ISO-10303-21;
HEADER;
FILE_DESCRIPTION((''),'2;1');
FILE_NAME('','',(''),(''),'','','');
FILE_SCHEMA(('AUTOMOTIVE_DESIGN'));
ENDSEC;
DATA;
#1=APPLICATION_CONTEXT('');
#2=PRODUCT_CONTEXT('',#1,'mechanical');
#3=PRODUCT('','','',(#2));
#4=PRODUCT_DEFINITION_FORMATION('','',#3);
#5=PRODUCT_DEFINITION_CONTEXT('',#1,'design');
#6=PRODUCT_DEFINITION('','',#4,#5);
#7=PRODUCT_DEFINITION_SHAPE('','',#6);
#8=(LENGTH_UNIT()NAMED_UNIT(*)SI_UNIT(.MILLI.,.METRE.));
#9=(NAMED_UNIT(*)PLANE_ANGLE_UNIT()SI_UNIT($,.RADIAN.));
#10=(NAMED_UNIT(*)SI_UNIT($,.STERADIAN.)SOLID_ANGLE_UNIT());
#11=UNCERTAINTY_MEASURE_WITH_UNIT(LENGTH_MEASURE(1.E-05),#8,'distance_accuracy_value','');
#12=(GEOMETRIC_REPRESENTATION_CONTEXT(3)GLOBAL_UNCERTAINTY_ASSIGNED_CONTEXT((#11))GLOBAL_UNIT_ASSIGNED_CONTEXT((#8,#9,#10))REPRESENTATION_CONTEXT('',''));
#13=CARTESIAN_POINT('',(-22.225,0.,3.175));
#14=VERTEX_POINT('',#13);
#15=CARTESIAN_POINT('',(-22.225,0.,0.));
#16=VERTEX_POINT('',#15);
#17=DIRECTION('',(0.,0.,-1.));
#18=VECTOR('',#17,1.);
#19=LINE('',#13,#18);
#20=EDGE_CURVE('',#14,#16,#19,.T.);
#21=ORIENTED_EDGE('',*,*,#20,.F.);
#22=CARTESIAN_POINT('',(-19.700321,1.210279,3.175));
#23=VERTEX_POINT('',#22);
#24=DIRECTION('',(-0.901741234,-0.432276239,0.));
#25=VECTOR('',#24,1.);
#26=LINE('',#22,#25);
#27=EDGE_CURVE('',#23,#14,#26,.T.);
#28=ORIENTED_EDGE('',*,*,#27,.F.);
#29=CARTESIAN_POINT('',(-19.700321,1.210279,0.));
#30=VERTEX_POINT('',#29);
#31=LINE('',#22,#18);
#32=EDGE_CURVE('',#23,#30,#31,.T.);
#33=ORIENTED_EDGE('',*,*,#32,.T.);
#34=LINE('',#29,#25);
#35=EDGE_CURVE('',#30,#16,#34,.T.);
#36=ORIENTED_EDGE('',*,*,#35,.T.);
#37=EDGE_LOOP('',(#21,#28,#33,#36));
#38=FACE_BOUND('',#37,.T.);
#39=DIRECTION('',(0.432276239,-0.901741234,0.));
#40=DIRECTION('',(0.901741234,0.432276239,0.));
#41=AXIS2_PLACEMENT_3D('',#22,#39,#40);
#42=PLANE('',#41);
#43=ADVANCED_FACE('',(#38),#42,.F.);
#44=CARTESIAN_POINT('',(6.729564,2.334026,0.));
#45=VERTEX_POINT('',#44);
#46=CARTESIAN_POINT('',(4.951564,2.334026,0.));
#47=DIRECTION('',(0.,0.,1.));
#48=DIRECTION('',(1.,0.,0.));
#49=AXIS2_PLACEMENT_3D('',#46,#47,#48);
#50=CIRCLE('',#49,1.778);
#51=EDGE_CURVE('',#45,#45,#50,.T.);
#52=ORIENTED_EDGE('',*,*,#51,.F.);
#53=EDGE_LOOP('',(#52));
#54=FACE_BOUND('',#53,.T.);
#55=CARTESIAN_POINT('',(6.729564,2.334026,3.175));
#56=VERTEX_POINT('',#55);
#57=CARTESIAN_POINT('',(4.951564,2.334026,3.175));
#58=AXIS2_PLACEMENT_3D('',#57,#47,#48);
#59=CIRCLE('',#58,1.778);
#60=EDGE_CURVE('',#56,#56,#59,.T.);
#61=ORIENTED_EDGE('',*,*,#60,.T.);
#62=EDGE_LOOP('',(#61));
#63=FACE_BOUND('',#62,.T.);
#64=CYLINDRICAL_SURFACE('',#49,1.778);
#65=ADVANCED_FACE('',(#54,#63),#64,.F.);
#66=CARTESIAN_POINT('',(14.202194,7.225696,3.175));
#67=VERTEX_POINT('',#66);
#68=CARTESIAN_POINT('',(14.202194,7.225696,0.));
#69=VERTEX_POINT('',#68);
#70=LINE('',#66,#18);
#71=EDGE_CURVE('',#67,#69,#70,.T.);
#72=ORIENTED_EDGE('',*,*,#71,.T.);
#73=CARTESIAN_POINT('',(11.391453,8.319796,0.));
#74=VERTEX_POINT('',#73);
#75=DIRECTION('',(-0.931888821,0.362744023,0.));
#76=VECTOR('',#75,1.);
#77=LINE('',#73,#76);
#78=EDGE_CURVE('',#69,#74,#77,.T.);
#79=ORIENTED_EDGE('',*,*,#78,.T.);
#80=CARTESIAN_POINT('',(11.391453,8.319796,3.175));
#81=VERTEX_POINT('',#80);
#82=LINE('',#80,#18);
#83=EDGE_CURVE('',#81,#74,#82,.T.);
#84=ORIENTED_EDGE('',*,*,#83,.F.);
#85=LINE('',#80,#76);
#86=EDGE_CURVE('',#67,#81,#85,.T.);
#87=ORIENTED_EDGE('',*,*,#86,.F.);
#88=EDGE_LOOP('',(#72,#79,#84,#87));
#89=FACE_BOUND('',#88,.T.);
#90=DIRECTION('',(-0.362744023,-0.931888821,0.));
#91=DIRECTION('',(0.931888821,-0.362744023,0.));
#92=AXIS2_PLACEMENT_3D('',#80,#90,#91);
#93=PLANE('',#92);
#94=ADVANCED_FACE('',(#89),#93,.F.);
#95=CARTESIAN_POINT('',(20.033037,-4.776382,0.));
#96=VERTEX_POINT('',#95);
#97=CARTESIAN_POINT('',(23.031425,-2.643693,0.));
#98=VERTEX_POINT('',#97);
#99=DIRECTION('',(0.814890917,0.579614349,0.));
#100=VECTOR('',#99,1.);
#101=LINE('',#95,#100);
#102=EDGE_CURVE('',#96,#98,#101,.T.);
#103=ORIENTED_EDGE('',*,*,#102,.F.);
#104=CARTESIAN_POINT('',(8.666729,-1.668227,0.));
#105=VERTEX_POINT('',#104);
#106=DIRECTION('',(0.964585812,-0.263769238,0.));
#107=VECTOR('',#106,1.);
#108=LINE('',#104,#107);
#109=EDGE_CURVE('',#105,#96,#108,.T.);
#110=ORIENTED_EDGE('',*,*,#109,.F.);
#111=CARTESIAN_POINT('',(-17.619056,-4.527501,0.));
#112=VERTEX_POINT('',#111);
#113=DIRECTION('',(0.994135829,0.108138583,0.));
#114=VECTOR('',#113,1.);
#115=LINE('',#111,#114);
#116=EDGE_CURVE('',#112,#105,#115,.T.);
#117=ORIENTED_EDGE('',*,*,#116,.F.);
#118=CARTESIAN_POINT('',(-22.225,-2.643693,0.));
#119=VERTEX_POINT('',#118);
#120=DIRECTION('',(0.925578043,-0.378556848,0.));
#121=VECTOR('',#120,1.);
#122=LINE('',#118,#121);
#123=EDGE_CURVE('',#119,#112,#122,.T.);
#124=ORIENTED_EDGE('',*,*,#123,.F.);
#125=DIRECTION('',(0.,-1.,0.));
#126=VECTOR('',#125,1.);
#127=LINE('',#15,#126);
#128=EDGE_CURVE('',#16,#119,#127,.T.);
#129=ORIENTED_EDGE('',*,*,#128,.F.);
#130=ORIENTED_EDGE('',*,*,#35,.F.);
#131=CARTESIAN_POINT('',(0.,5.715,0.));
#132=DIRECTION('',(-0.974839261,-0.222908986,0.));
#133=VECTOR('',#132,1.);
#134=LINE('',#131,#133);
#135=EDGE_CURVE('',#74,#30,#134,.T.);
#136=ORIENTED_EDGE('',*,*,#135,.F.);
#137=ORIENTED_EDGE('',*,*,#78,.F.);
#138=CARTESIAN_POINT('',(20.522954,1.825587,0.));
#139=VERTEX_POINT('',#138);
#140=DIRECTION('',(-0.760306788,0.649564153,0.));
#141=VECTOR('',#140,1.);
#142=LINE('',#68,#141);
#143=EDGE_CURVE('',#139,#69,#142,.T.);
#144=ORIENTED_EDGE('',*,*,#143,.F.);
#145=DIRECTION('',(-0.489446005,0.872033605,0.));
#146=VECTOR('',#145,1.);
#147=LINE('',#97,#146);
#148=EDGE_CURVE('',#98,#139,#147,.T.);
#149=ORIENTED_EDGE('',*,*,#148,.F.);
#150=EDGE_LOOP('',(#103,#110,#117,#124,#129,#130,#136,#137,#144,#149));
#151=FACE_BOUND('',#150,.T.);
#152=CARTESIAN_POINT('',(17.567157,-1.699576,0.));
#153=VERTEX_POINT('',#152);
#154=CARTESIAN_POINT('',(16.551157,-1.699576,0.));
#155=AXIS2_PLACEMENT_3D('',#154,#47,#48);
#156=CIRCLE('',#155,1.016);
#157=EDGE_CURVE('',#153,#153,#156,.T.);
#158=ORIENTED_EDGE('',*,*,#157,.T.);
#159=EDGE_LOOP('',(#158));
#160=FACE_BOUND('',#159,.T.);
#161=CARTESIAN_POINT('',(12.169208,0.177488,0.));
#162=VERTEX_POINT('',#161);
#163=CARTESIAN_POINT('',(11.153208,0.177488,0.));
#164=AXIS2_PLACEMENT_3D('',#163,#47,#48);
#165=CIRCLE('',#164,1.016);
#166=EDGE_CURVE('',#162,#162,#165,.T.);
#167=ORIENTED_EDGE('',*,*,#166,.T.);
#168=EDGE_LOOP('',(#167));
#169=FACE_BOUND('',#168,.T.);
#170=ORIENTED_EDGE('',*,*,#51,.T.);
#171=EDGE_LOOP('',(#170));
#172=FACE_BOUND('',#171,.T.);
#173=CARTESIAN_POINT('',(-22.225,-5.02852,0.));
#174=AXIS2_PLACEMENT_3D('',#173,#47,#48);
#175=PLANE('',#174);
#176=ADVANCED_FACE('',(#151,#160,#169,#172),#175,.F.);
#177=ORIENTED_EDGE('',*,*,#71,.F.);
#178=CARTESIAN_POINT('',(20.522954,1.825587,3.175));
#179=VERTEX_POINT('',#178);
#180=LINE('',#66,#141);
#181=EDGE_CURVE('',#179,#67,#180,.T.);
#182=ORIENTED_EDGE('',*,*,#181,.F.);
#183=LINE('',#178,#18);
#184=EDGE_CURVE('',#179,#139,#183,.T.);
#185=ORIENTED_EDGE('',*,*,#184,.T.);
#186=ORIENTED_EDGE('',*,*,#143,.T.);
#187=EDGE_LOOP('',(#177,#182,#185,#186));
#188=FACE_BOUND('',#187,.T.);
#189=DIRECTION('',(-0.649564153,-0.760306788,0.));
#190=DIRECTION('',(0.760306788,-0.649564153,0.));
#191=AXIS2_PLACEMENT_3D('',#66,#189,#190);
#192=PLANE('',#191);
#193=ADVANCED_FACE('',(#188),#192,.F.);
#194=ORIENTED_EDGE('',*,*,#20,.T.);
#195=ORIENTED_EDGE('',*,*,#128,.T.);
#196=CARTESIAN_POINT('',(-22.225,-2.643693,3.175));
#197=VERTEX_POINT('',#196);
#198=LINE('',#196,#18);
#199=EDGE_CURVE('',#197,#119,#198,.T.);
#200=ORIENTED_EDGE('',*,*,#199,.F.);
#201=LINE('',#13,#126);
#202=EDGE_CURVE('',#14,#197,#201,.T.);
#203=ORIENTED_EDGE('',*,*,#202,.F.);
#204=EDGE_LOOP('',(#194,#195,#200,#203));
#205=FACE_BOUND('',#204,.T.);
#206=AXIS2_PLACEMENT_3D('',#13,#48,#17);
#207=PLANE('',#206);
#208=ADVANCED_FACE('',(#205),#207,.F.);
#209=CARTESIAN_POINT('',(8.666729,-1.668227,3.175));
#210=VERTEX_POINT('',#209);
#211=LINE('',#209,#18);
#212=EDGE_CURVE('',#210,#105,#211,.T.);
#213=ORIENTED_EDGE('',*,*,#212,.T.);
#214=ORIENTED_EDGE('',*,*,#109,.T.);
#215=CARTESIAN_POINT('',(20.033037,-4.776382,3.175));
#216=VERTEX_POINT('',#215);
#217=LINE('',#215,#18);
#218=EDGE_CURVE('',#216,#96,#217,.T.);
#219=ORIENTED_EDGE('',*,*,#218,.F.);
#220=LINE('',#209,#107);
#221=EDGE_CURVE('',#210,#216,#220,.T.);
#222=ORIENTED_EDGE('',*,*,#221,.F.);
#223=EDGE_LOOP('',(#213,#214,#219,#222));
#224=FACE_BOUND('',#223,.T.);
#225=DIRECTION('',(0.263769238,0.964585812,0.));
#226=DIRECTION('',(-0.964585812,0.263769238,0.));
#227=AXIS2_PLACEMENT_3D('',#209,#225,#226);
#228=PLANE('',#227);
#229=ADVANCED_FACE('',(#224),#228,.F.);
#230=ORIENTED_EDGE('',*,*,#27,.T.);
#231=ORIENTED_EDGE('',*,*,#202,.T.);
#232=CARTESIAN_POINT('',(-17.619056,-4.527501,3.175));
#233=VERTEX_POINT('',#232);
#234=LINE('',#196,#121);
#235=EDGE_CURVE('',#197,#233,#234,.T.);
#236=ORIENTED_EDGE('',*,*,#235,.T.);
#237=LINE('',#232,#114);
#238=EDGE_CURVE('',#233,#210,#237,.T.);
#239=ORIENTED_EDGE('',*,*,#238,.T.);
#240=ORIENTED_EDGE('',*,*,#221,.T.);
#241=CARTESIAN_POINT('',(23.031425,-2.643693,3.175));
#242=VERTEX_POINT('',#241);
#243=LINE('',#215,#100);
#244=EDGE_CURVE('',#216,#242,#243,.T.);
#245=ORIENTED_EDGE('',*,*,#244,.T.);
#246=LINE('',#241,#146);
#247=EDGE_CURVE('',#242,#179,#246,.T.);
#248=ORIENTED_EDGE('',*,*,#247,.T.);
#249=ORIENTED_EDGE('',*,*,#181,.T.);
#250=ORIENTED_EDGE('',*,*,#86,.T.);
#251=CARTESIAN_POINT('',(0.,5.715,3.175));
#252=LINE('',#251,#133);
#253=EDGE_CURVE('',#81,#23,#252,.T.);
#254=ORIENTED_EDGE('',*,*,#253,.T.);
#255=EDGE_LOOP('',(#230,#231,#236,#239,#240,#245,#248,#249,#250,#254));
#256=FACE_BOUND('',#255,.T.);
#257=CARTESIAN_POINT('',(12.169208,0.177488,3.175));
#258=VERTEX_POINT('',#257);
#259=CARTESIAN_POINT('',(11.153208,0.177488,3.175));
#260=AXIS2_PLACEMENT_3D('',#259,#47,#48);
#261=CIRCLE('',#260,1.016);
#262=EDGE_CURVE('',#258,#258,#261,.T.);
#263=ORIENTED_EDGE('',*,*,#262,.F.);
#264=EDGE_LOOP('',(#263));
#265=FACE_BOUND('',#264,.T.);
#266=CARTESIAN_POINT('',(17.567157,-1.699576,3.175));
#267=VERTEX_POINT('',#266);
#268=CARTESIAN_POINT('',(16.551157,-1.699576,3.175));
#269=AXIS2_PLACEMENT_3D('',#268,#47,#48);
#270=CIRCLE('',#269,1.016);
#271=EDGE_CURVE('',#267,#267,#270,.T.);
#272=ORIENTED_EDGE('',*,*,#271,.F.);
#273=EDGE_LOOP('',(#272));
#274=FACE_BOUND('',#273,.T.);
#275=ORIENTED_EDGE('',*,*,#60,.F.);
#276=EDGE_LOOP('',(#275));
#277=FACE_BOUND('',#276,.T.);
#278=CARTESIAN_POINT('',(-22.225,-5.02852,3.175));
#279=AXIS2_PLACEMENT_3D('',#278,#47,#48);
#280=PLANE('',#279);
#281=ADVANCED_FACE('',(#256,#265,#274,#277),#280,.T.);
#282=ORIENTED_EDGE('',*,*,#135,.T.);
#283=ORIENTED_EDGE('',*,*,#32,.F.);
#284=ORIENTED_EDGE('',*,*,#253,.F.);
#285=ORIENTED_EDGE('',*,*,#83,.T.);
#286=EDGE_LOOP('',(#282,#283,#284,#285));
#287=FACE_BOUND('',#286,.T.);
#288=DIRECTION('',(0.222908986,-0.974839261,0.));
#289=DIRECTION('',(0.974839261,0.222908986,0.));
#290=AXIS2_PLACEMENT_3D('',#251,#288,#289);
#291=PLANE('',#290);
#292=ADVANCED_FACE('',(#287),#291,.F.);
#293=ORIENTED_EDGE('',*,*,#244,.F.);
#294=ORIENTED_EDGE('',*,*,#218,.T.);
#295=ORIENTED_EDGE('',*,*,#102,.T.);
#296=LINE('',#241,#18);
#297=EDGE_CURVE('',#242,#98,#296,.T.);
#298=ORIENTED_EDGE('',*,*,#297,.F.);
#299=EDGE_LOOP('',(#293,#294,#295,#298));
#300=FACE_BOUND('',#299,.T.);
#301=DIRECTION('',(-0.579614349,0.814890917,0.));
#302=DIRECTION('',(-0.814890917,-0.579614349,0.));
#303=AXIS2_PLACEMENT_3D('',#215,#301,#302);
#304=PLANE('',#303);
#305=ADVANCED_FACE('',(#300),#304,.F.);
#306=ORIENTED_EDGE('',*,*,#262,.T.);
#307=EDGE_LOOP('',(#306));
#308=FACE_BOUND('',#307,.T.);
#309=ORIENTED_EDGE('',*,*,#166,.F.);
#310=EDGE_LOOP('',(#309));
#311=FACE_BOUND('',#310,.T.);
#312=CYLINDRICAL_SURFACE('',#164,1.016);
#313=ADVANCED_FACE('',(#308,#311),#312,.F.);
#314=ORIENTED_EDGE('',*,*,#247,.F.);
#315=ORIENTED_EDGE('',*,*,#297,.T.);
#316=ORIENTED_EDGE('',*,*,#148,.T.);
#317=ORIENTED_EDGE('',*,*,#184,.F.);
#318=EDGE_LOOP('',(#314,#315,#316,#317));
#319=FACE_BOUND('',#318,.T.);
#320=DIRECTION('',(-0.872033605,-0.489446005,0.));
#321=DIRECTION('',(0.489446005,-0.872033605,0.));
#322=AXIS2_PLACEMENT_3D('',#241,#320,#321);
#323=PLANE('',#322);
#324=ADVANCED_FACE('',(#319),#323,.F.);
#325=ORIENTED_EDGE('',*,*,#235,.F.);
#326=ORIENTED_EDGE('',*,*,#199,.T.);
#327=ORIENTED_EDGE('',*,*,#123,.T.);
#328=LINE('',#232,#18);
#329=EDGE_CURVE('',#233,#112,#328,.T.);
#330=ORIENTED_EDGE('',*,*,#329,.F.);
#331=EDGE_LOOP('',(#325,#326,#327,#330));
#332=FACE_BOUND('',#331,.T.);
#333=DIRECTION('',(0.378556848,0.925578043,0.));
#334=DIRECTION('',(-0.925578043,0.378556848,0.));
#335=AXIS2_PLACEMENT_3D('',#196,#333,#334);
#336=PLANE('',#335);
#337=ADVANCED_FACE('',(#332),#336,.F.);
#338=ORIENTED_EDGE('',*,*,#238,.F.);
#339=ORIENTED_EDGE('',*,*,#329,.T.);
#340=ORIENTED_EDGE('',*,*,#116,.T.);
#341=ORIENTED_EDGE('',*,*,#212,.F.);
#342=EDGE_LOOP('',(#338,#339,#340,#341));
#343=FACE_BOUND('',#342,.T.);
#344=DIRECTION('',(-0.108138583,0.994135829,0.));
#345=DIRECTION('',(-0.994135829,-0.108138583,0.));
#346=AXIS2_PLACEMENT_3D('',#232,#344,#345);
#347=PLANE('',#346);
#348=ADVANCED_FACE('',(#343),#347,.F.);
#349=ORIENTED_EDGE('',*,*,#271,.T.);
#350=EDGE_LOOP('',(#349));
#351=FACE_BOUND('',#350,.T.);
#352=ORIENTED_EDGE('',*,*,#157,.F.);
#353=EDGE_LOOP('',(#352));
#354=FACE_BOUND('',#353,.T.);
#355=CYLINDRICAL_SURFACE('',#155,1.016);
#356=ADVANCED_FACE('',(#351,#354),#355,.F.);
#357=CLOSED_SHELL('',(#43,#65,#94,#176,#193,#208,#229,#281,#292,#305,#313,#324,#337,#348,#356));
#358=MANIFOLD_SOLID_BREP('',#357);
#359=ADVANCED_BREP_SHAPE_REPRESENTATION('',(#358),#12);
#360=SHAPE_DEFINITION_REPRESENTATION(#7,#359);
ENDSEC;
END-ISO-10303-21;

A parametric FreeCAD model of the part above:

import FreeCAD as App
import Part
import Sketcher
Q = App.Units.Quantity


def add_polygon(sketch, points):
    """Adds a closed chain of lines whose ends are joined by coincident constraints."""
    first, n = sketch.GeometryCount, len(points)
    for a, b in zip(points, points[1:] + points[:1]):
        sketch.addGeometry(Part.LineSegment(App.Vector(*a, 0), App.Vector(*b, 0)), False)
    for i in range(n):
        sketch.addConstraint(Sketcher.Constraint("Coincident", first + i, 2, first + (i + 1) % n, 1))

doc = App.newDocument("Part")
body = doc.addObject("PartDesign::Body", "Body")

# Sketch on XY plane
sketch1 = doc.addObject("Sketcher::SketchObject", "Sketch")
body.addObject(sketch1)
sketch1.AttachmentSupport = (doc.XY_Plane, [""])
sketch1.MapMode = "FlatFace"
add_polygon(sketch1, [(20.522954, 1.825587), (14.202194, 7.225696), (11.391453, 8.319796), (0, 5.715), (-19.700321, 1.210279), (-22.225, 0), (-22.225, -2.643693), (-17.619056, -4.527501), (8.666729, -1.668227), (20.033037, -4.776382), (23.031425, -2.643693)])  # lines 0-10
sketch1.addConstraint([
    Sketcher.Constraint("Vertical", 5),
    Sketcher.Constraint("PointOnObject", 2, 2, -2),
    Sketcher.Constraint("PointOnObject", 4, 2, -1),
    Sketcher.Constraint("Parallel", 2, 3),
    Sketcher.Constraint("Horizontal", 5, 2, 9, 2),
    Sketcher.Constraint("DistanceY", -1, 1, 2, 2, Q("0.225 in")),
    Sketcher.Constraint("DistanceX", 4, 2, -1, 1, Q("0.875 in")),
    Sketcher.Constraint("DistanceY", 6, 2, -1, 1, Q("4.527501 mm")),
    Sketcher.Constraint("DistanceY", 0, 2, 1, 2, Q("1.0941 mm")),
    Sketcher.Constraint("DistanceX", 1, 2, 10, 2, Q("9.131501 mm")),
    Sketcher.Constraint("Distance", 3, Q("20.208789 mm")),
    Sketcher.Constraint("Distance", 6, Q("4.976289 mm")),
    Sketcher.Constraint("Distance", 7, Q("26.440838 mm")),
    Sketcher.Constraint("DistanceY", 5, 2, 5, 1, Q("2.643693 mm")),
    Sketcher.Constraint("DistanceX", 3, 2, -1, 1, Q("19.700321 mm")),
    Sketcher.Constraint("DistanceX", -1, 1, 7, 2, Q("8.666729 mm")),
    Sketcher.Constraint("DistanceY", 8, 2, -1, 1, Q("4.776382 mm")),
    Sketcher.Constraint("DistanceX", 1, 2, 0, 2, Q("2.810741 mm")),
    Sketcher.Constraint("DistanceY", 5, 2, 1, 2, Q("10.963489 mm")),
    Sketcher.Constraint("DistanceX", 7, 2, 8, 2, Q("11.366308 mm")),
    Sketcher.Constraint("DistanceX", 8, 2, 9, 2, Q("2.998388 mm")),
    Sketcher.Constraint("DistanceY", 9, 2, 10, 2, Q("4.46928 mm")),
])
pad1 = doc.addObject("PartDesign::Pad", "Pad")
body.addObject(pad1)
pad1.Profile = sketch1
pad1.Length = Q("0.125 in")

# Sketch on XY plane
sketch2 = doc.addObject("Sketcher::SketchObject", "Sketch001")
body.addObject(sketch2)
sketch2.AttachmentSupport = (doc.XY_Plane, [""])
sketch2.MapMode = "FlatFace"
sketch2.AttachmentOffset = App.Placement(App.Vector(0, 0, 0.125 * 25.4), App.Rotation())
sketch2.addGeometry([
    Part.Circle(App.Vector(11.153208, 0.177488, 0), App.Vector(0, 0, 1), 1.016),
    Part.Circle(App.Vector(16.551157, -1.699576, 0), App.Vector(0, 0, 1), 1.016),
    Part.Circle(App.Vector(4.951564, 2.334026, 0), App.Vector(0, 0, 1), 1.778),
], False)
sketch2.addConstraint([
    Sketcher.Constraint("Equal", 0, 1),
    Sketcher.Constraint("Diameter", 0, Q("0.08 in")),
    Sketcher.Constraint("Diameter", 2, Q("0.14 in")),
    Sketcher.Constraint("DistanceY", 1, 3, 0, 3, Q("0.0739002 in")),
    Sketcher.Constraint("DistanceX", -1, 1, 0, 3, Q("11.153208 mm")),
    Sketcher.Constraint("DistanceX", 0, 3, 1, 3, Q("5.397949 mm")),
    Sketcher.Constraint("DistanceY", 0, 3, 2, 3, Q("2.156538 mm")),
    Sketcher.Constraint("DistanceY", -1, 1, 0, 3, Q("0.177488 mm")),
    Sketcher.Constraint("DistanceX", -1, 1, 2, 3, Q("4.951564 mm")),
])
pocket1 = doc.addObject("PartDesign::Pocket", "Pocket")
body.addObject(pocket1)
pocket1.Profile = sketch2
pocket1.Type = "ThroughAll"

doc.recompute()
